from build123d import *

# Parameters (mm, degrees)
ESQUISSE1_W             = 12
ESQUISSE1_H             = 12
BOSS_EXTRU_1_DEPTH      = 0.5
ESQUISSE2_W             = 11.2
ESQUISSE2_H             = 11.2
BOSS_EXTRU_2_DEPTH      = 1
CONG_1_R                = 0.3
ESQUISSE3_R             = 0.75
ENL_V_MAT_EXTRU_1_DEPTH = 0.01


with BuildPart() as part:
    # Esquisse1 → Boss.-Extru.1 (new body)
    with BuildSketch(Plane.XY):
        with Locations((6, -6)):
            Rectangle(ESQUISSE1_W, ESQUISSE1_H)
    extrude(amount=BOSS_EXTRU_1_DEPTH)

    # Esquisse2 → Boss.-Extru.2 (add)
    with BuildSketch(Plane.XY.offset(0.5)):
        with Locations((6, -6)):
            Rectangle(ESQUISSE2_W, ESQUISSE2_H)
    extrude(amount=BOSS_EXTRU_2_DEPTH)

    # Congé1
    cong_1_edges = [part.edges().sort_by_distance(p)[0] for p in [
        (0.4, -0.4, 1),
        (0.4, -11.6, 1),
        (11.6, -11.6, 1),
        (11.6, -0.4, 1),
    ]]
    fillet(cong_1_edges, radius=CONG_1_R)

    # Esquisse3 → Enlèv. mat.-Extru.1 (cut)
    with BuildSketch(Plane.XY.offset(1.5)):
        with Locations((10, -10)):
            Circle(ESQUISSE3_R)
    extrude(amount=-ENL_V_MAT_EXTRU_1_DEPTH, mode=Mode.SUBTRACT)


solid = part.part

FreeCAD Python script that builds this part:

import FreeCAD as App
import Part
import Sketcher


def edges_at(feature, points):
    """Names of the edges that pass closest to the given points."""
    edges = feature.Shape.Edges
    near = lambda p: min(range(len(edges)), key=lambda i: edges[i].distToShape(Part.Vertex(*p))[0])
    return sorted({f"Edge{near(p) + 1}" for p in points})

doc = App.newDocument("Part")
body = doc.addObject("PartDesign::Body", "Body")

# Sketch on XY plane
sketch1 = body.newObject("Sketcher::SketchObject", "Sketch")
sketch1.AttachmentSupport = (doc.getObject("XY_Plane"), [""])
sketch1.MapMode = "FlatFace"
sketch1.addGeometry(Part.LineSegment(App.Vector(0, 0, 0), App.Vector(0, -12, 0)), False)
sketch1.addGeometry(Part.LineSegment(App.Vector(0, -12, 0), App.Vector(12, -12, 0)), False)
sketch1.addGeometry(Part.LineSegment(App.Vector(12, -12, 0), App.Vector(12, 0, 0)), False)
sketch1.addGeometry(Part.LineSegment(App.Vector(12, 0, 0), App.Vector(0, 0, 0)), False)
sketch1.addConstraint(Sketcher.Constraint("Coincident", 0, 2, 1, 1))
sketch1.addConstraint(Sketcher.Constraint("Coincident", 1, 2, 2, 1))
sketch1.addConstraint(Sketcher.Constraint("Coincident", 2, 2, 3, 1))
sketch1.addConstraint(Sketcher.Constraint("Coincident", 3, 2, 0, 1))
sketch1.addConstraint(Sketcher.Constraint("Vertical", 0))
sketch1.addConstraint(Sketcher.Constraint("Horizontal", 1))
sketch1.addConstraint(Sketcher.Constraint("Vertical", 2))
sketch1.addConstraint(Sketcher.Constraint("Horizontal", 3))
sketch1.addConstraint(Sketcher.Constraint("Coincident", 3, 2, -1, 1))
sketch1.addConstraint(Sketcher.Constraint("Equal", 3, 0))
sketch1.addConstraint(Sketcher.Constraint("DistanceX", 1, 1, 1, 2, 12.0))
pad1 = body.newObject("PartDesign::Pad", "Pad")
pad1.Profile = sketch1
pad1.Length = 0.5

# Sketch on XY plane
sketch2 = body.newObject("Sketcher::SketchObject", "Sketch001")
sketch2.AttachmentSupport = (doc.getObject("XY_Plane"), [""])
sketch2.MapMode = "FlatFace"
sketch2.AttachmentOffset = App.Placement(App.Vector(0, 0, 0.5), App.Rotation())
sketch2.addGeometry(Part.LineSegment(App.Vector(0, 0, 0), App.Vector(0, -12, 0)), False)
sketch2.addGeometry(Part.LineSegment(App.Vector(0, -12, 0), App.Vector(12, -12, 0)), False)
sketch2.addGeometry(Part.LineSegment(App.Vector(12, -12, 0), App.Vector(12, 0, 0)), False)
sketch2.addGeometry(Part.LineSegment(App.Vector(12, 0, 0), App.Vector(0, 0, 0)), False)
sketch2.addConstraint(Sketcher.Constraint("Coincident", 0, 2, 1, 1))
sketch2.addConstraint(Sketcher.Constraint("Coincident", 1, 2, 2, 1))
sketch2.addConstraint(Sketcher.Constraint("Coincident", 2, 2, 3, 1))
sketch2.addConstraint(Sketcher.Constraint("Coincident", 3, 2, 0, 1))
sketch2.addConstraint(Sketcher.Constraint("Vertical", 0))
sketch2.addConstraint(Sketcher.Constraint("Horizontal", 1))
sketch2.addConstraint(Sketcher.Constraint("Vertical", 2))
sketch2.addConstraint(Sketcher.Constraint("Horizontal", 3))
sketch2.addConstraint(Sketcher.Constraint("Equal", 3, 0))
sketch2.addConstraint(Sketcher.Constraint("DistanceX", 1, 1, 1, 2, 11.2))
sketch2.addConstraint(Sketcher.Constraint("DistanceX", -1, 1, 0, 2, 0.4))
sketch2.addConstraint(Sketcher.Constraint("DistanceY", 0, 2, -1, 1, 11.6))
pad2 = body.newObject("PartDesign::Pad", "Pad001")
pad2.Profile = sketch2
pad2.Length = 1
doc.recompute()

fillet = body.newObject("PartDesign::Fillet", "Fillet")
fillet.Base = (pad2, edges_at(pad2, [
    (0.4, -0.4, 1),
    (0.4, -11.6, 1),
    (11.6, -11.6, 1),
    (11.6, -0.4, 1),
]))
fillet.Radius = 0.3

# Sketch on XY plane
sketch3 = body.newObject("Sketcher::SketchObject", "Sketch002")
sketch3.AttachmentSupport = (doc.getObject("XY_Plane"), [""])
sketch3.MapMode = "FlatFace"
sketch3.AttachmentOffset = App.Placement(App.Vector(0, 0, 1.5), App.Rotation())
sketch3.addGeometry(Part.Circle(App.Vector(10, -10, 0), App.Vector(0, 0, 1), 0.8), False)
sketch3.addConstraint(Sketcher.Constraint("Diameter", 0, 1.5))
sketch3.addConstraint(Sketcher.Constraint("DistanceX", -1, 1, 0, 3, 10.0))
sketch3.addConstraint(Sketcher.Constraint("DistanceY", 0, 3, -1, 1, 10.0))
pocket1 = body.newObject("PartDesign::Pocket", "Pocket")
pocket1.Profile = sketch3
pocket1.Length = 0.01

doc.recompute()
